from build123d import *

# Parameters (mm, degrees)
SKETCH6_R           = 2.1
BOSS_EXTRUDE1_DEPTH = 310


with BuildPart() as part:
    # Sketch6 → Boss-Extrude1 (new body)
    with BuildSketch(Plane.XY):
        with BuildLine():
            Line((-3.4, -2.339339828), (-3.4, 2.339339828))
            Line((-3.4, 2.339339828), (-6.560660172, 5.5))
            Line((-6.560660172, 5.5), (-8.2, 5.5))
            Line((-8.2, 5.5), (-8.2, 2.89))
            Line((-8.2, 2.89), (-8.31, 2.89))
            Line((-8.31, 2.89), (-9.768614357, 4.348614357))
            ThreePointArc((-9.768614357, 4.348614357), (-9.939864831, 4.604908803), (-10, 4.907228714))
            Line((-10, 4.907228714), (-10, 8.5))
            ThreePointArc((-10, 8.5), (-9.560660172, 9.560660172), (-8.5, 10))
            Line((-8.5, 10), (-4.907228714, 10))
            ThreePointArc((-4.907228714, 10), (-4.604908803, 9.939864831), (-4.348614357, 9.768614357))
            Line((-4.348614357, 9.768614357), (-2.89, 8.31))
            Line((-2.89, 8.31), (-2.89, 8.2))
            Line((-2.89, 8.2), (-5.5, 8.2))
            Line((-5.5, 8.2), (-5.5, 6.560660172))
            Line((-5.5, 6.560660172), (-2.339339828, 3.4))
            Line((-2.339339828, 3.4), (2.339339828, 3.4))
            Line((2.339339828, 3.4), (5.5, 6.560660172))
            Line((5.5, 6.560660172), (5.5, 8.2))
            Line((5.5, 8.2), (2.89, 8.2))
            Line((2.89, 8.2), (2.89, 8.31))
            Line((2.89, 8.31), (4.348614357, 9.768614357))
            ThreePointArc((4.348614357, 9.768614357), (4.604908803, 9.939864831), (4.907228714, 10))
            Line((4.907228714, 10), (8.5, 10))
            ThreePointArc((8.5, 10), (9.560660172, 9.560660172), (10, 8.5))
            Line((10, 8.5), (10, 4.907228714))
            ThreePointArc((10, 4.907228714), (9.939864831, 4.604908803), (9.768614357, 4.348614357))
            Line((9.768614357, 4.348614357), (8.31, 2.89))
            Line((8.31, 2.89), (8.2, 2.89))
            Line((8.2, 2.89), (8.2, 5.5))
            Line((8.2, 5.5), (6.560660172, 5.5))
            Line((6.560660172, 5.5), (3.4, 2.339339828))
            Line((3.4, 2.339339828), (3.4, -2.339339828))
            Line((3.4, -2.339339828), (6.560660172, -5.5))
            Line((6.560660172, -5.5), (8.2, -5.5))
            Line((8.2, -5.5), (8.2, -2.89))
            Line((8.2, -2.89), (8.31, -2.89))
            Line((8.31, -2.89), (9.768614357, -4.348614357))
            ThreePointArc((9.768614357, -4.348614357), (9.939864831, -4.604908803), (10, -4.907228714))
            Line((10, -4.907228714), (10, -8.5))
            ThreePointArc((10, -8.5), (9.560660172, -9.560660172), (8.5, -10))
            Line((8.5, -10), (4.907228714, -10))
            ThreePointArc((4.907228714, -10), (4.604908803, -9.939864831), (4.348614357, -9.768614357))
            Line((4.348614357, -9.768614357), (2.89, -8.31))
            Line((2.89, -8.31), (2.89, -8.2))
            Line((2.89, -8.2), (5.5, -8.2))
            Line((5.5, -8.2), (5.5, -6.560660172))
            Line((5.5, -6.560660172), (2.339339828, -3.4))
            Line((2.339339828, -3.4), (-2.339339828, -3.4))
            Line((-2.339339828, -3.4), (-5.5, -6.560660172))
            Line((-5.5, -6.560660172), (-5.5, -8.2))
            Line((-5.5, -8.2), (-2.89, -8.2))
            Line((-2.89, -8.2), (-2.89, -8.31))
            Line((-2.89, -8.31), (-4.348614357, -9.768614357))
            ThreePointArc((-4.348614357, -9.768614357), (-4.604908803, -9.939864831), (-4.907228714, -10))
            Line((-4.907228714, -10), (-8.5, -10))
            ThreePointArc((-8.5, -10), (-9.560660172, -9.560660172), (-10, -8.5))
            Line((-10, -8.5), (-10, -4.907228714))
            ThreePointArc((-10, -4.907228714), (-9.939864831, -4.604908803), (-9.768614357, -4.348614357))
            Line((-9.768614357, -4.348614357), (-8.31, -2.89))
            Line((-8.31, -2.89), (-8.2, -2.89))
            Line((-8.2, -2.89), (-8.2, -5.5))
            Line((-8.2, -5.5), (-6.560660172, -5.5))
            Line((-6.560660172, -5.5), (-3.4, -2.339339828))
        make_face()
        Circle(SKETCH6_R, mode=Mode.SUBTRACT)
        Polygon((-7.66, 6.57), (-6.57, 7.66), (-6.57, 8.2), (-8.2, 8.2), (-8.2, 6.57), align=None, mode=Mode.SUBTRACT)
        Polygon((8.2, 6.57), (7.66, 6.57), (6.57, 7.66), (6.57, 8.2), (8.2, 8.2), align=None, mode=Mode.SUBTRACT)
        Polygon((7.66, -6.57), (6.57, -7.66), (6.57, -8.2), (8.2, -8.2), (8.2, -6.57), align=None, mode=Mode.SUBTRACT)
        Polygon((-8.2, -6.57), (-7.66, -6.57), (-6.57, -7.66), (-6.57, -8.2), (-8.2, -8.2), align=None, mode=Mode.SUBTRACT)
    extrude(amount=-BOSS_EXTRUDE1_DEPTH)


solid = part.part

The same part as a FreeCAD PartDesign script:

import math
import FreeCAD as App
import Part
import Sketcher
from FreeCAD import Vector
Q = App.Units.Quantity

doc = App.newDocument("Part")
body = doc.addObject("PartDesign::Body", "Body")

# Sketch on XY plane
sketch1 = doc.addObject("Sketcher::SketchObject", "Sketch")
body.addObject(sketch1)
sketch1.AttachmentSupport = (doc.XY_Plane, [""])
sketch1.MapMode = "FlatFace"
sketch1.addGeometry(Part.LineSegment(Vector(-3.4, 2.33934, 0), Vector(-3.4, -2.33934, 0)), False)
sketch1.addGeometry(Part.LineSegment(Vector(-3.4, -2.33934, 0), Vector(-6.56066, -5.5, 0)), False)
sketch1.addGeometry(Part.LineSegment(Vector(-6.56066, -5.5, 0), Vector(-8.2, -5.5, 0)), False)
sketch1.addGeometry(Part.LineSegment(Vector(-8.2, -5.5, 0), Vector(-8.2, -2.89, 0)), False)
sketch1.addGeometry(Part.LineSegment(Vector(-8.2, -2.89, 0), Vector(-8.31, -2.89, 0)), False)
sketch1.addGeometry(Part.LineSegment(Vector(-8.31, -2.89, 0), Vector(-9.768614, -4.348614, 0)), False)
sketch1.addGeometry(Part.ArcOfCircle(Part.Circle(Vector(-9.21, -4.907229, 0), Vector(0, 0, 1), 0.79), math.radians(135), math.radians(180)), False)
sketch1.addGeometry(Part.LineSegment(Vector(-10, -4.907229, 0), Vector(-10, -8.5, 0)), False)
sketch1.addGeometry(Part.ArcOfCircle(Part.Circle(Vector(-8.5, -8.5, 0), Vector(0, 0, 1), 1.5), math.radians(180), math.radians(270)), False)
sketch1.addGeometry(Part.LineSegment(Vector(-8.5, -10, 0), Vector(-4.907229, -10, 0)), False)
sketch1.addGeometry(Part.ArcOfCircle(Part.Circle(Vector(-4.907229, -9.21, 0), Vector(0, 0, 1), 0.79), math.radians(-90), math.radians(-45)), False)
sketch1.addGeometry(Part.LineSegment(Vector(-4.348614, -9.768614, 0), Vector(-2.89, -8.31, 0)), False)
sketch1.addGeometry(Part.LineSegment(Vector(-2.89, -8.31, 0), Vector(-2.89, -8.2, 0)), False)
sketch1.addGeometry(Part.LineSegment(Vector(-2.89, -8.2, 0), Vector(-5.5, -8.2, 0)), False)
sketch1.addGeometry(Part.LineSegment(Vector(-5.5, -8.2, 0), Vector(-5.5, -6.56066, 0)), False)
sketch1.addGeometry(Part.LineSegment(Vector(-5.5, -6.56066, 0), Vector(-2.33934, -3.4, 0)), False)
sketch1.addGeometry(Part.LineSegment(Vector(-2.33934, -3.4, 0), Vector(2.33934, -3.4, 0)), False)
sketch1.addGeometry(Part.LineSegment(Vector(2.33934, -3.4, 0), Vector(5.5, -6.56066, 0)), False)
sketch1.addGeometry(Part.LineSegment(Vector(5.5, -6.56066, 0), Vector(5.5, -8.2, 0)), False)
sketch1.addGeometry(Part.LineSegment(Vector(5.5, -8.2, 0), Vector(2.89, -8.2, 0)), False)
sketch1.addGeometry(Part.LineSegment(Vector(2.89, -8.2, 0), Vector(2.89, -8.31, 0)), False)
sketch1.addGeometry(Part.LineSegment(Vector(2.89, -8.31, 0), Vector(4.348614, -9.768614, 0)), False)
sketch1.addGeometry(Part.ArcOfCircle(Part.Circle(Vector(4.907229, -9.21, 0), Vector(0, 0, 1), 0.79), math.radians(-135), math.radians(-90)), False)
sketch1.addGeometry(Part.LineSegment(Vector(4.907229, -10, 0), Vector(8.5, -10, 0)), False)
sketch1.addGeometry(Part.ArcOfCircle(Part.Circle(Vector(8.5, -8.5, 0), Vector(0, 0, 1), 1.5), math.radians(-90), math.radians(0)), False)
sketch1.addGeometry(Part.LineSegment(Vector(10, -8.5, 0), Vector(10, -4.907229, 0)), False)
sketch1.addGeometry(Part.ArcOfCircle(Part.Circle(Vector(9.21, -4.907229, 0), Vector(0, 0, 1), 0.79), math.radians(0), math.radians(45)), False)
sketch1.addGeometry(Part.LineSegment(Vector(9.768614, -4.348614, 0), Vector(8.31, -2.89, 0)), False)
sketch1.addGeometry(Part.LineSegment(Vector(8.31, -2.89, 0), Vector(8.2, -2.89, 0)), False)
sketch1.addGeometry(Part.LineSegment(Vector(8.2, -2.89, 0), Vector(8.2, -5.5, 0)), False)
sketch1.addGeometry(Part.LineSegment(Vector(8.2, -5.5, 0), Vector(6.56066, -5.5, 0)), False)
sketch1.addGeometry(Part.LineSegment(Vector(6.56066, -5.5, 0), Vector(3.4, -2.33934, 0)), False)
sketch1.addGeometry(Part.LineSegment(Vector(3.4, -2.33934, 0), Vector(3.4, 2.33934, 0)), False)
sketch1.addGeometry(Part.LineSegment(Vector(3.4, 2.33934, 0), Vector(6.56066, 5.5, 0)), False)
sketch1.addGeometry(Part.LineSegment(Vector(6.56066, 5.5, 0), Vector(8.2, 5.5, 0)), False)
sketch1.addGeometry(Part.LineSegment(Vector(8.2, 5.5, 0), Vector(8.2, 2.89, 0)), False)
sketch1.addGeometry(Part.LineSegment(Vector(8.2, 2.89, 0), Vector(8.31, 2.89, 0)), False)
sketch1.addGeometry(Part.LineSegment(Vector(8.31, 2.89, 0), Vector(9.768614, 4.348614, 0)), False)
sketch1.addGeometry(Part.ArcOfCircle(Part.Circle(Vector(9.21, 4.907229, 0), Vector(0, 0, 1), 0.79), math.radians(-45), math.radians(0)), False)
sketch1.addGeometry(Part.LineSegment(Vector(10, 4.907229, 0), Vector(10, 8.5, 0)), False)
sketch1.addGeometry(Part.ArcOfCircle(Part.Circle(Vector(8.5, 8.5, 0), Vector(0, 0, 1), 1.5), math.radians(0), math.radians(90)), False)
sketch1.addGeometry(Part.LineSegment(Vector(8.5, 10, 0), Vector(4.907229, 10, 0)), False)
sketch1.addGeometry(Part.ArcOfCircle(Part.Circle(Vector(4.907229, 9.21, 0), Vector(0, 0, 1), 0.79), math.radians(90), math.radians(135)), False)
sketch1.addGeometry(Part.LineSegment(Vector(4.348614, 9.768614, 0), Vector(2.89, 8.31, 0)), False)
sketch1.addGeometry(Part.LineSegment(Vector(2.89, 8.31, 0), Vector(2.89, 8.2, 0)), False)
sketch1.addGeometry(Part.LineSegment(Vector(2.89, 8.2, 0), Vector(5.5, 8.2, 0)), False)
sketch1.addGeometry(Part.LineSegment(Vector(5.5, 8.2, 0), Vector(5.5, 6.56066, 0)), False)
sketch1.addGeometry(Part.LineSegment(Vector(5.5, 6.56066, 0), Vector(2.33934, 3.4, 0)), False)
sketch1.addGeometry(Part.LineSegment(Vector(2.33934, 3.4, 0), Vector(-2.33934, 3.4, 0)), False)
sketch1.addGeometry(Part.LineSegment(Vector(-2.33934, 3.4, 0), Vector(-5.5, 6.56066, 0)), False)
sketch1.addGeometry(Part.LineSegment(Vector(-5.5, 6.56066, 0), Vector(-5.5, 8.2, 0)), False)
sketch1.addGeometry(Part.LineSegment(Vector(-5.5, 8.2, 0), Vector(-2.89, 8.2, 0)), False)
sketch1.addGeometry(Part.LineSegment(Vector(-2.89, 8.2, 0), Vector(-2.89, 8.31, 0)), False)
sketch1.addGeometry(Part.LineSegment(Vector(-2.89, 8.31, 0), Vector(-4.348614, 9.768614, 0)), False)
sketch1.addGeometry(Part.ArcOfCircle(Part.Circle(Vector(-4.907229, 9.21, 0), Vector(0, 0, 1), 0.79), math.radians(45), math.radians(90)), False)
sketch1.addGeometry(Part.LineSegment(Vector(-4.907229, 10, 0), Vector(-8.5, 10, 0)), False)
sketch1.addGeometry(Part.ArcOfCircle(Part.Circle(Vector(-8.5, 8.5, 0), Vector(0, 0, 1), 1.5), math.radians(90), math.radians(180)), False)
sketch1.addGeometry(Part.LineSegment(Vector(-10, 8.5, 0), Vector(-10, 4.907229, 0)), False)
sketch1.addGeometry(Part.ArcOfCircle(Part.Circle(Vector(-9.21, 4.907229, 0), Vector(0, 0, 1), 0.79), math.radians(180), math.radians(225)), False)
sketch1.addGeometry(Part.LineSegment(Vector(-9.768614, 4.348614, 0), Vector(-8.31, 2.89, 0)), False)
sketch1.addGeometry(Part.LineSegment(Vector(-8.31, 2.89, 0), Vector(-8.2, 2.89, 0)), False)
sketch1.addGeometry(Part.LineSegment(Vector(-8.2, 2.89, 0), Vector(-8.2, 5.5, 0)), False)
sketch1.addGeometry(Part.LineSegment(Vector(-8.2, 5.5, 0), Vector(-6.56066, 5.5, 0)), False)
sketch1.addGeometry(Part.LineSegment(Vector(-6.56066, 5.5, 0), Vector(-3.4, 2.33934, 0)), False)
sketch1.addGeometry(Part.LineSegment(Vector(7.66, -6.57, 0), Vector(8.2, -6.57, 0)), False)
sketch1.addGeometry(Part.LineSegment(Vector(8.2, -6.57, 0), Vector(8.2, -8.2, 0)), False)
sketch1.addGeometry(Part.LineSegment(Vector(8.2, -8.2, 0), Vector(6.57, -8.2, 0)), False)
sketch1.addGeometry(Part.LineSegment(Vector(6.57, -8.2, 0), Vector(6.57, -7.66, 0)), False)
sketch1.addGeometry(Part.LineSegment(Vector(6.57, -7.66, 0), Vector(7.66, -6.57, 0)), False)
sketch1.addGeometry(Part.LineSegment(Vector(-8.2, -6.57, 0), Vector(-7.66, -6.57, 0)), False)
sketch1.addGeometry(Part.LineSegment(Vector(-7.66, -6.57, 0), Vector(-6.57, -7.66, 0)), False)
sketch1.addGeometry(Part.LineSegment(Vector(-6.57, -7.66, 0), Vector(-6.57, -8.2, 0)), False)
sketch1.addGeometry(Part.LineSegment(Vector(-6.57, -8.2, 0), Vector(-8.2, -8.2, 0)), False)
sketch1.addGeometry(Part.LineSegment(Vector(-8.2, -8.2, 0), Vector(-8.2, -6.57, 0)), False)
sketch1.addGeometry(Part.LineSegment(Vector(8.2, 6.57, 0), Vector(7.66, 6.57, 0)), False)
sketch1.addGeometry(Part.LineSegment(Vector(7.66, 6.57, 0), Vector(6.57, 7.66, 0)), False)
sketch1.addGeometry(Part.LineSegment(Vector(6.57, 7.66, 0), Vector(6.57, 8.2, 0)), False)
sketch1.addGeometry(Part.LineSegment(Vector(6.57, 8.2, 0), Vector(8.2, 8.2, 0)), False)
sketch1.addGeometry(Part.LineSegment(Vector(8.2, 8.2, 0), Vector(8.2, 6.57, 0)), False)
sketch1.addGeometry(Part.Circle(Vector(0, 0, 0), Vector(0, 0, 1), 2.1), False)
sketch1.addGeometry(Part.LineSegment(Vector(-7.66, 6.57, 0), Vector(-8.2, 6.57, 0)), False)
sketch1.addGeometry(Part.LineSegment(Vector(-8.2, 6.57, 0), Vector(-8.2, 8.2, 0)), False)
sketch1.addGeometry(Part.LineSegment(Vector(-8.2, 8.2, 0), Vector(-6.57, 8.2, 0)), False)
sketch1.addGeometry(Part.LineSegment(Vector(-6.57, 8.2, 0), Vector(-6.57, 7.66, 0)), False)
sketch1.addGeometry(Part.LineSegment(Vector(-6.57, 7.66, 0), Vector(-7.66, 6.57, 0)), False)
sketch1.addConstraint(Sketcher.Constraint("Coincident", 0, 2, 1, 1))
sketch1.addConstraint(Sketcher.Constraint("Coincident", 1, 2, 2, 1))
sketch1.addConstraint(Sketcher.Constraint("Coincident", 2, 2, 3, 1))
sketch1.addConstraint(Sketcher.Constraint("Coincident", 3, 2, 4, 1))
sketch1.addConstraint(Sketcher.Constraint("Coincident", 4, 2, 5, 1))
sketch1.addConstraint(Sketcher.Constraint("Tangent", 5, 2, 6, 1))
sketch1.addConstraint(Sketcher.Constraint("Tangent", 6, 2, 7, 1))
sketch1.addConstraint(Sketcher.Constraint("Tangent", 7, 2, 8, 1))
sketch1.addConstraint(Sketcher.Constraint("Tangent", 8, 2, 9, 1))
sketch1.addConstraint(Sketcher.Constraint("Tangent", 9, 2, 10, 1))
sketch1.addConstraint(Sketcher.Constraint("Tangent", 10, 2, 11, 1))
sketch1.addConstraint(Sketcher.Constraint("Coincident", 11, 2, 12, 1))
sketch1.addConstraint(Sketcher.Constraint("Coincident", 12, 2, 13, 1))
sketch1.addConstraint(Sketcher.Constraint("Coincident", 13, 2, 14, 1))
sketch1.addConstraint(Sketcher.Constraint("Coincident", 14, 2, 15, 1))
sketch1.addConstraint(Sketcher.Constraint("Coincident", 15, 2, 16, 1))
sketch1.addConstraint(Sketcher.Constraint("Coincident", 16, 2, 17, 1))
sketch1.addConstraint(Sketcher.Constraint("Coincident", 17, 2, 18, 1))
sketch1.addConstraint(Sketcher.Constraint("Coincident", 18, 2, 19, 1))
sketch1.addConstraint(Sketcher.Constraint("Coincident", 19, 2, 20, 1))
sketch1.addConstraint(Sketcher.Constraint("Coincident", 20, 2, 21, 1))
sketch1.addConstraint(Sketcher.Constraint("Tangent", 21, 2, 22, 1))
sketch1.addConstraint(Sketcher.Constraint("Tangent", 22, 2, 23, 1))
sketch1.addConstraint(Sketcher.Constraint("Tangent", 23, 2, 24, 1))
sketch1.addConstraint(Sketcher.Constraint("Tangent", 24, 2, 25, 1))
sketch1.addConstraint(Sketcher.Constraint("Tangent", 25, 2, 26, 1))
sketch1.addConstraint(Sketcher.Constraint("Tangent", 26, 2, 27, 1))
sketch1.addConstraint(Sketcher.Constraint("Coincident", 27, 2, 28, 1))
sketch1.addConstraint(Sketcher.Constraint("Coincident", 28, 2, 29, 1))
sketch1.addConstraint(Sketcher.Constraint("Coincident", 29, 2, 30, 1))
sketch1.addConstraint(Sketcher.Constraint("Coincident", 30, 2, 31, 1))
sketch1.addConstraint(Sketcher.Constraint("Coincident", 31, 2, 32, 1))
sketch1.addConstraint(Sketcher.Constraint("Coincident", 32, 2, 33, 1))
sketch1.addConstraint(Sketcher.Constraint("Coincident", 33, 2, 34, 1))
sketch1.addConstraint(Sketcher.Constraint("Coincident", 34, 2, 35, 1))
sketch1.addConstraint(Sketcher.Constraint("Coincident", 35, 2, 36, 1))
sketch1.addConstraint(Sketcher.Constraint("Coincident", 36, 2, 37, 1))
sketch1.addConstraint(Sketcher.Constraint("Tangent", 37, 2, 38, 1))
sketch1.addConstraint(Sketcher.Constraint("Tangent", 38, 2, 39, 1))
sketch1.addConstraint(Sketcher.Constraint("Tangent", 39, 2, 40, 1))
sketch1.addConstraint(Sketcher.Constraint("Tangent", 40, 2, 41, 1))
sketch1.addConstraint(Sketcher.Constraint("Tangent", 41, 2, 42, 1))
sketch1.addConstraint(Sketcher.Constraint("Tangent", 42, 2, 43, 1))
sketch1.addConstraint(Sketcher.Constraint("Coincident", 43, 2, 44, 1))
sketch1.addConstraint(Sketcher.Constraint("Coincident", 44, 2, 45, 1))
sketch1.addConstraint(Sketcher.Constraint("Coincident", 45, 2, 46, 1))
sketch1.addConstraint(Sketcher.Constraint("Coincident", 46, 2, 47, 1))
sketch1.addConstraint(Sketcher.Constraint("Coincident", 47, 2, 48, 1))
sketch1.addConstraint(Sketcher.Constraint("Coincident", 48, 2, 49, 1))
sketch1.addConstraint(Sketcher.Constraint("Coincident", 49, 2, 50, 1))
sketch1.addConstraint(Sketcher.Constraint("Coincident", 50, 2, 51, 1))
sketch1.addConstraint(Sketcher.Constraint("Coincident", 51, 2, 52, 1))
sketch1.addConstraint(Sketcher.Constraint("Coincident", 52, 2, 53, 1))
sketch1.addConstraint(Sketcher.Constraint("Tangent", 53, 2, 54, 1))
sketch1.addConstraint(Sketcher.Constraint("Tangent", 54, 2, 55, 1))
sketch1.addConstraint(Sketcher.Constraint("Tangent", 55, 2, 56, 1))
sketch1.addConstraint(Sketcher.Constraint("Tangent", 56, 2, 57, 1))
sketch1.addConstraint(Sketcher.Constraint("Tangent", 57, 2, 58, 1))
sketch1.addConstraint(Sketcher.Constraint("Tangent", 58, 2, 59, 1))
sketch1.addConstraint(Sketcher.Constraint("Coincident", 59, 2, 60, 1))
sketch1.addConstraint(Sketcher.Constraint("Coincident", 60, 2, 61, 1))
sketch1.addConstraint(Sketcher.Constraint("Coincident", 61, 2, 62, 1))
sketch1.addConstraint(Sketcher.Constraint("Coincident", 62, 2, 63, 1))
sketch1.addConstraint(Sketcher.Constraint("Coincident", 63, 2, 0, 1))
sketch1.addConstraint(Sketcher.Constraint("Coincident", 64, 2, 65, 1))
sketch1.addConstraint(Sketcher.Constraint("Coincident", 65, 2, 66, 1))
sketch1.addConstraint(Sketcher.Constraint("Coincident", 66, 2, 67, 1))
sketch1.addConstraint(Sketcher.Constraint("Coincident", 67, 2, 68, 1))
sketch1.addConstraint(Sketcher.Constraint("Coincident", 68, 2, 64, 1))
sketch1.addConstraint(Sketcher.Constraint("Coincident", 69, 2, 70, 1))
sketch1.addConstraint(Sketcher.Constraint("Coincident", 70, 2, 71, 1))
sketch1.addConstraint(Sketcher.Constraint("Coincident", 71, 2, 72, 1))
sketch1.addConstraint(Sketcher.Constraint("Coincident", 72, 2, 73, 1))
sketch1.addConstraint(Sketcher.Constraint("Coincident", 73, 2, 69, 1))
sketch1.addConstraint(Sketcher.Constraint("Coincident", 74, 2, 75, 1))
sketch1.addConstraint(Sketcher.Constraint("Coincident", 75, 2, 76, 1))
sketch1.addConstraint(Sketcher.Constraint("Coincident", 76, 2, 77, 1))
sketch1.addConstraint(Sketcher.Constraint("Coincident", 77, 2, 78, 1))
sketch1.addConstraint(Sketcher.Constraint("Coincident", 78, 2, 74, 1))
sketch1.addConstraint(Sketcher.Constraint("Coincident", 80, 2, 81, 1))
sketch1.addConstraint(Sketcher.Constraint("Coincident", 81, 2, 82, 1))
sketch1.addConstraint(Sketcher.Constraint("Coincident", 82, 2, 83, 1))
sketch1.addConstraint(Sketcher.Constraint("Coincident", 83, 2, 84, 1))
sketch1.addConstraint(Sketcher.Constraint("Coincident", 84, 2, 80, 1))
sketch1.addConstraint(Sketcher.Constraint("Vertical", 0))
sketch1.addConstraint(Sketcher.Constraint("Horizontal", 2))
sketch1.addConstraint(Sketcher.Constraint("Vertical", 3))
sketch1.addConstraint(Sketcher.Constraint("Horizontal", 4))
sketch1.addConstraint(Sketcher.Constraint("Vertical", 7))
sketch1.addConstraint(Sketcher.Constraint("Horizontal", 9))
sketch1.addConstraint(Sketcher.Constraint("Vertical", 12))
sketch1.addConstraint(Sketcher.Constraint("Horizontal", 13))
sketch1.addConstraint(Sketcher.Constraint("Vertical", 14))
sketch1.addConstraint(Sketcher.Constraint("Horizontal", 16))
sketch1.addConstraint(Sketcher.Constraint("Vertical", 18))
sketch1.addConstraint(Sketcher.Constraint("Horizontal", 19))
sketch1.addConstraint(Sketcher.Constraint("Vertical", 20))
sketch1.addConstraint(Sketcher.Constraint("Horizontal", 23))
sketch1.addConstraint(Sketcher.Constraint("Vertical", 25))
sketch1.addConstraint(Sketcher.Constraint("Horizontal", 28))
sketch1.addConstraint(Sketcher.Constraint("Vertical", 29))
sketch1.addConstraint(Sketcher.Constraint("Horizontal", 30))
sketch1.addConstraint(Sketcher.Constraint("Vertical", 32))
sketch1.addConstraint(Sketcher.Constraint("Horizontal", 34))
sketch1.addConstraint(Sketcher.Constraint("Vertical", 35))
sketch1.addConstraint(Sketcher.Constraint("Horizontal", 36))
sketch1.addConstraint(Sketcher.Constraint("Vertical", 39))
sketch1.addConstraint(Sketcher.Constraint("Horizontal", 41))
sketch1.addConstraint(Sketcher.Constraint("Vertical", 44))
sketch1.addConstraint(Sketcher.Constraint("Horizontal", 45))
sketch1.addConstraint(Sketcher.Constraint("Vertical", 46))
sketch1.addConstraint(Sketcher.Constraint("Horizontal", 48))
sketch1.addConstraint(Sketcher.Constraint("Vertical", 50))
sketch1.addConstraint(Sketcher.Constraint("Horizontal", 51))
sketch1.addConstraint(Sketcher.Constraint("Vertical", 52))
sketch1.addConstraint(Sketcher.Constraint("Horizontal", 55))
sketch1.addConstraint(Sketcher.Constraint("Vertical", 57))
sketch1.addConstraint(Sketcher.Constraint("Horizontal", 60))
sketch1.addConstraint(Sketcher.Constraint("Vertical", 61))
sketch1.addConstraint(Sketcher.Constraint("Horizontal", 62))
sketch1.addConstraint(Sketcher.Constraint("Horizontal", 64))
sketch1.addConstraint(Sketcher.Constraint("Vertical", 65))
sketch1.addConstraint(Sketcher.Constraint("Horizontal", 66))
sketch1.addConstraint(Sketcher.Constraint("Vertical", 67))
sketch1.addConstraint(Sketcher.Constraint("Horizontal", 69))
sketch1.addConstraint(Sketcher.Constraint("Vertical", 71))
sketch1.addConstraint(Sketcher.Constraint("Horizontal", 72))
sketch1.addConstraint(Sketcher.Constraint("Vertical", 73))
sketch1.addConstraint(Sketcher.Constraint("Horizontal", 74))
sketch1.addConstraint(Sketcher.Constraint("Vertical", 76))
sketch1.addConstraint(Sketcher.Constraint("Horizontal", 77))
sketch1.addConstraint(Sketcher.Constraint("Vertical", 78))
sketch1.addConstraint(Sketcher.Constraint("Horizontal", 80))
sketch1.addConstraint(Sketcher.Constraint("Vertical", 81))
sketch1.addConstraint(Sketcher.Constraint("Horizontal", 82))
sketch1.addConstraint(Sketcher.Constraint("Vertical", 83))
sketch1.addConstraint(Sketcher.Constraint("Coincident", 79, 3, -1, 1))
sketch1.addConstraint(Sketcher.Constraint("Equal", 6, 10))
sketch1.addConstraint(Sketcher.Constraint("Equal", 10, 22))
sketch1.addConstraint(Sketcher.Constraint("Equal", 8, 24))
sketch1.addConstraint(Sketcher.Constraint("Equal", 22, 26))
sketch1.addConstraint(Sketcher.Constraint("Equal", 26, 38))
sketch1.addConstraint(Sketcher.Constraint("Equal", 24, 40))
sketch1.addConstraint(Sketcher.Constraint("Equal", 38, 42))
sketch1.addConstraint(Sketcher.Constraint("Equal", 42, 54))
sketch1.addConstraint(Sketcher.Constraint("Equal", 40, 56))
sketch1.addConstraint(Sketcher.Constraint("Equal", 54, 58))
sketch1.addConstraint(Sketcher.Constraint("Symmetric", 6, 3, 38, 3, -1, 1))
sketch1.addConstraint(Sketcher.Constraint("Symmetric", 10, 3, 42, 3, -1, 1))
sketch1.addConstraint(Sketcher.Constraint("Symmetric", 22, 3, 54, 3, -1, 1))
sketch1.addConstraint(Sketcher.Constraint("Symmetric", 26, 3, 58, 3, -1, 1))
sketch1.addConstraint(Sketcher.Constraint("Symmetric", 0, 2, 32, 2, -1, 1))
sketch1.addConstraint(Sketcher.Constraint("Symmetric", 1, 2, 33, 2, -1, 1))
sketch1.addConstraint(Sketcher.Constraint("Symmetric", 3, 2, 35, 2, -1, 1))
sketch1.addConstraint(Sketcher.Constraint("Symmetric", 11, 2, 43, 2, -1, 1))
sketch1.addConstraint(Sketcher.Constraint("Symmetric", 13, 2, 45, 2, -1, 1))
sketch1.addConstraint(Sketcher.Constraint("Symmetric", 15, 2, 47, 2, -1, 1))
sketch1.addConstraint(Sketcher.Constraint("Symmetric", 17, 2, 49, 2, -1, 1))
sketch1.addConstraint(Sketcher.Constraint("Symmetric", 19, 2, 51, 2, -1, 1))
sketch1.addConstraint(Sketcher.Constraint("Symmetric", 27, 2, 59, 2, -1, 1))
sketch1.addConstraint(Sketcher.Constraint("Symmetric", 29, 2, 61, 2, -1, 1))
sketch1.addConstraint(Sketcher.Constraint("Symmetric", 69, 2, 74, 2, -1, 1))
sketch1.addConstraint(Sketcher.Constraint("Symmetric", 70, 2, 75, 2, -1, 1))
sketch1.addConstraint(Sketcher.Constraint("Symmetric", 72, 2, 77, 2, -1, 1))
sketch1.addConstraint(Sketcher.Constraint("Symmetric", 64, 2, 80, 2, -1, 1))
sketch1.addConstraint(Sketcher.Constraint("Symmetric", 66, 2, 82, 2, -1, 1))
sketch1.addConstraint(Sketcher.Constraint("Symmetric", 10, 3, 22, 3, -2))
sketch1.addConstraint(Sketcher.Constraint("Symmetric", 6, 3, 26, 3, -2))
sketch1.addConstraint(Sketcher.Constraint("Symmetric", 14, 2, 17, 2, -2))
sketch1.addConstraint(Sketcher.Constraint("Symmetric", 12, 2, 19, 2, -2))
sketch1.addConstraint(Sketcher.Constraint("Symmetric", 4, 2, 27, 2, -2))
sketch1.addConstraint(Sketcher.Constraint("Symmetric", 2, 2, 29, 2, -2))
sketch1.addConstraint(Sketcher.Constraint("Symmetric", 68, 2, 69, 2, -2))
sketch1.addConstraint(Sketcher.Constraint("Symmetric", 67, 2, 70, 2, -2))
sketch1.addConstraint(Sketcher.Constraint("Symmetric", 65, 2, 72, 2, -2))
sketch1.addConstraint(Sketcher.Constraint("Parallel", 1, 5))
sketch1.addConstraint(Sketcher.Constraint("Parallel", 5, 11))
sketch1.addConstraint(Sketcher.Constraint("Parallel", 11, 15))
sketch1.addConstraint(Sketcher.Constraint("Perpendicular", 15, 17))
sketch1.addConstraint(Sketcher.Constraint("Parallel", 17, 21))
sketch1.addConstraint(Sketcher.Constraint("Parallel", 21, 27))
sketch1.addConstraint(Sketcher.Constraint("Parallel", 27, 31))
sketch1.addConstraint(Sketcher.Constraint("Parallel", 33, 37))
sketch1.addConstraint(Sketcher.Constraint("Parallel", 43, 47))
sketch1.addConstraint(Sketcher.Constraint("Perpendicular", 47, 49))
sketch1.addConstraint(Sketcher.Constraint("Parallel", 49, 53))
sketch1.addConstraint(Sketcher.Constraint("Parallel", 59, 63))
sketch1.addConstraint(Sketcher.Constraint("Perpendicular", 63, 68))
sketch1.addConstraint(Sketcher.Constraint("Perpendicular", 75, 84))
sketch1.addConstraint(Sketcher.Constraint("Horizontal", 0, 2, 31, 2))
sketch1.addConstraint(Sketcher.Constraint("Horizontal", 32, 2, 63, 2))
sketch1.addConstraint(Sketcher.Constraint("Horizontal", 19, 2, 65, 2))
sketch1.addConstraint(Sketcher.Constraint("Horizontal", 75, 2, 83, 2))
sketch1.addConstraint(Sketcher.Constraint("Vertical", 35, 2, 64, 2))
sketch1.addConstraint(Sketcher.Constraint("Equal", 48, 0))
sketch1.addConstraint(Sketcher.Constraint("Equal", 51, 3))
sketch1.addConstraint(Sketcher.Constraint("Equal", 55, 7))
sketch1.addConstraint(Sketcher.Constraint("Equal", 60, 12))
sketch1.addConstraint(Sketcher.Constraint("Equal", 62, 14))
sketch1.addConstraint(Sketcher.Constraint("Equal", 82, 65))
sketch1.addConstraint(Sketcher.Constraint("Equal", 5, 11))
sketch1.addConstraint(Sketcher.Constraint("Equal", 1, 15))
sketch1.addConstraint(Sketcher.Constraint("Diameter", 79, Q("4.2 mm")))
sketch1.addConstraint(Sketcher.Constraint("Radius", 8, Q("1.5 mm")))
sketch1.addConstraint(Sketcher.Constraint("Radius", 6, Q("0.79 mm")))
sketch1.addConstraint(Sketcher.Constraint("DistanceX", 6, 2, -1, 1, Q("10 mm")))
sketch1.addConstraint(Sketcher.Constraint("DistanceX", 4, 2, 4, 1, Q("0.11 mm")))
sketch1.addConstraint(Sketcher.Constraint("DistanceX", 13, 2, 13, 1, Q("2.61 mm")))
sketch1.addConstraint(Sketcher.Constraint("DistanceX", 64, 1, 64, 2, Q("0.54 mm")))
sketch1.addConstraint(Sketcher.Constraint("DistanceX", 66, 2, 66, 1, Q("1.63 mm")))
sketch1.addConstraint(Sketcher.Constraint("DistanceX", 0, 2, -1, 1, Q("3.4 mm")))
sketch1.addConstraint(Sketcher.Constraint("DistanceY", 1, 2, -1, 1, Q("5.5 mm")))
sketch1.addConstraint(Sketcher.Constraint("DistanceX", 2, 2, -1, 1, Q("8.2 mm")))
sketch1.addConstraint(Sketcher.Constraint("DistanceX", 2, 2, 2, 1, Q("1.63934 mm")))
pad1 = doc.addObject("PartDesign::Pad", "Pad")
body.addObject(pad1)
pad1.Profile = sketch1
pad1.Length = 310
pad1.Reversed = True

doc.recompute()
